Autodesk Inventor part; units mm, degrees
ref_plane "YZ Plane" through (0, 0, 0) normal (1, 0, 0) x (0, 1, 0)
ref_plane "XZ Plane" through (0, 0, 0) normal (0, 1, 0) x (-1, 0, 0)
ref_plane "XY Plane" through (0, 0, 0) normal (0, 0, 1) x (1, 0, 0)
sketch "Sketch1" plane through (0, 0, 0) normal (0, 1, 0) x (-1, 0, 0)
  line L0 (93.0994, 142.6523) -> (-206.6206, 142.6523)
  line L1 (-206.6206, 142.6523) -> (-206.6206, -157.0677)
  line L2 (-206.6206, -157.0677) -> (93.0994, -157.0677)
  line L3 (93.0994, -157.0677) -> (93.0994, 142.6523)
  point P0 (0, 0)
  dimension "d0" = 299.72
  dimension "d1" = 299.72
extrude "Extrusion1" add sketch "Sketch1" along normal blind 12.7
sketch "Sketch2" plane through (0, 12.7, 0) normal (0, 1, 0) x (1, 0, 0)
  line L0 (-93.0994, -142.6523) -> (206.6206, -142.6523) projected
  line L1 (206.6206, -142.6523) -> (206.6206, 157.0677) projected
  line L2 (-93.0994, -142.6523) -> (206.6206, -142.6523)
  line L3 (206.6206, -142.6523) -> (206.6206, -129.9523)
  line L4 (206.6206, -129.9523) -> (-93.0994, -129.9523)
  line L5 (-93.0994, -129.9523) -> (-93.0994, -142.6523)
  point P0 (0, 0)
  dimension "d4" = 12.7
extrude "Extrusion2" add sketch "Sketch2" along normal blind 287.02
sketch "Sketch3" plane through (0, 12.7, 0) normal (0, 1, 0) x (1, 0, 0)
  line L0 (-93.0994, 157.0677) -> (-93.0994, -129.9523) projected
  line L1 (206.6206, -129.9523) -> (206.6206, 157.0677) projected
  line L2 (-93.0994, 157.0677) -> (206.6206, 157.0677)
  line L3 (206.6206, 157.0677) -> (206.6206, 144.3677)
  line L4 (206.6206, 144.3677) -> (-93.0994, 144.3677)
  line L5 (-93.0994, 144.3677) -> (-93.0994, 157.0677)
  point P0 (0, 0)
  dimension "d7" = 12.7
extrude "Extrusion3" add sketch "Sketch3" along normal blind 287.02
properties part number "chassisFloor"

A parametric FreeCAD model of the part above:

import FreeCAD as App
import Part
import Sketcher
from FreeCAD import Vector
Q = App.Units.Quantity


def add_polygon(sketch, points):
    """Adds a closed chain of lines whose ends are joined by coincident constraints."""
    first, n = sketch.GeometryCount, len(points)
    for a, b in zip(points, points[1:] + points[:1]):
        sketch.addGeometry(Part.LineSegment(App.Vector(*a, 0), App.Vector(*b, 0)), False)
    for i in range(n):
        sketch.addConstraint(Sketcher.Constraint("Coincident", first + i, 2, first + (i + 1) % n, 1))

doc = App.newDocument("Part")
body = doc.addObject("PartDesign::Body", "Body")

sketch1 = body.newObject("Sketcher::SketchObject", "Sketch")
sketch1.AttachmentSupport = (doc.getObject("XZ_Plane"), [""])
sketch1.MapMode = "FlatFace"
add_polygon(sketch1, [(-93.0994, -157.0677), (-93.0994, 142.6523), (206.6206, 142.6523), (206.6206, -157.0677)])
sketch1.addConstraint([
    Sketcher.Constraint("Vertical", 0),
    Sketcher.Constraint("Horizontal", 1),
    Sketcher.Constraint("Vertical", 2),
    Sketcher.Constraint("Horizontal", 3),
    Sketcher.Constraint("Equal", 3, 0),
    Sketcher.Constraint("DistanceX", 1, 1, 1, 2, Q("11.8 in")),
    Sketcher.Constraint("DistanceX", 0, 2, -1, 1, Q("93.0994 mm")),
    Sketcher.Constraint("DistanceY", -1, 1, 0, 2, Q("142.6523 mm")),
])
pad1 = body.newObject("PartDesign::Pad", "Pad")
pad1.Profile = sketch1
pad1.Length = Q("0.5 in")
pad1.Reversed = True

sketch2 = body.newObject("Sketcher::SketchObject", "Sketch001")
sketch2.AttachmentSupport = (doc.getObject("XZ_Plane"), [""])
sketch2.MapMode = "FlatFace"
sketch2.AttachmentOffset = App.Placement(Vector(0, 0, -0.5 * 25.4), App.Rotation())
add_polygon(sketch2, [(-93.0994, 129.9523), (-93.0994, 142.6523), (206.6206, 142.6523), (206.6206, 129.9523)])
sketch2.addConstraint([
    Sketcher.Constraint("Vertical", 0),
    Sketcher.Constraint("Horizontal", 1),
    Sketcher.Constraint("Vertical", 2),
    Sketcher.Constraint("Horizontal", 3),
    Sketcher.Constraint("DistanceY", 0, 1, 0, 2, Q("0.5 in")),
    Sketcher.Constraint("DistanceX", 1, 1, 1, 2, Q("11.8 in")),
    Sketcher.Constraint("DistanceX", 0, 2, -1, 1, Q("93.0994 mm")),
    Sketcher.Constraint("DistanceY", -1, 1, 0, 2, Q("142.6523 mm")),
])
pad2 = body.newObject("PartDesign::Pad", "Pad001")
pad2.Profile = sketch2
pad2.Length = Q("11.3 in")
pad2.Reversed = True

sketch3 = body.newObject("Sketcher::SketchObject", "Sketch002")
sketch3.AttachmentSupport = (doc.getObject("XZ_Plane"), [""])
sketch3.MapMode = "FlatFace"
sketch3.AttachmentOffset = App.Placement(Vector(0, 0, -0.5 * 25.4), App.Rotation())
add_polygon(sketch3, [(206.6206, -157.0677), (-93.0994, -157.0677), (-93.0994, -144.3677), (206.6206, -144.3677)])
sketch3.addConstraint([
    Sketcher.Constraint("Horizontal", 0),
    Sketcher.Constraint("Vertical", 1),
    Sketcher.Constraint("Horizontal", 2),
    Sketcher.Constraint("Vertical", 3),
    Sketcher.Constraint("DistanceY", 1, 1, 1, 2, Q("0.5 in")),
    Sketcher.Constraint("DistanceX", 0, 2, 0, 1, Q("11.8 in")),
    Sketcher.Constraint("DistanceX", 0, 2, -1, 1, Q("93.0994 mm")),
    Sketcher.Constraint("DistanceY", 0, 2, -1, 1, Q("157.0677 mm")),
])
pad3 = body.newObject("PartDesign::Pad", "Pad002")
pad3.Profile = sketch3
pad3.Length = Q("11.3 in")
pad3.Reversed = True

doc.recompute()
